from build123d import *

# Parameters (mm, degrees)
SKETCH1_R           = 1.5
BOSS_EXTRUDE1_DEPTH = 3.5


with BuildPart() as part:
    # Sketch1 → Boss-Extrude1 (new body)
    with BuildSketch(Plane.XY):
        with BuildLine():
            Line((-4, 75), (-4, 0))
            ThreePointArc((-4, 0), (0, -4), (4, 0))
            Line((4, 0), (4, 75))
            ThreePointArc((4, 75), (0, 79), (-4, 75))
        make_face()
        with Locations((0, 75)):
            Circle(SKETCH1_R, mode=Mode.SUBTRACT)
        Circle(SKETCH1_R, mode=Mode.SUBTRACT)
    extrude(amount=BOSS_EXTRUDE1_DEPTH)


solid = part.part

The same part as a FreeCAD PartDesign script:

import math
import FreeCAD as App
import Part
import Sketcher
from FreeCAD import Vector
Q = App.Units.Quantity

doc = App.newDocument("Part")
params = doc.addObject("Spreadsheet::Sheet", "Params")
for row, (alias, value) in enumerate([
    ("sketch1_diameter", "3 mm"),
    ("sketch1_radius", "4 mm"),
    ("sketch1_height", "75 mm"),
    ("pad1_length", "3.5 mm"),
], start=1):
    params.set(f"A{row}", alias)
    params.set(f"B{row}", "=" + value)
    params.setAlias(f"B{row}", alias)

body = doc.addObject("PartDesign::Body", "Body")

# Sketch on XY plane
sketch1 = body.newObject("Sketcher::SketchObject", "Sketch")
sketch1.AttachmentSupport = (doc.getObject("XY_Plane"), [""])
sketch1.MapMode = "FlatFace"
sketch1.addGeometry([
    Part.LineSegment(Vector(-4, 75, 0), Vector(-4, 0, 0)),  # 0
    Part.ArcOfCircle(Part.Circle(Vector(0, 0, 0), Vector(0, 0, 1), 4), math.radians(180), math.radians(360)),  # 1
    Part.LineSegment(Vector(4, 0, 0), Vector(4, 75, 0)),  # 2
    Part.ArcOfCircle(Part.Circle(Vector(0, 75, 0), Vector(0, 0, 1), 4), math.radians(0), math.radians(180)),  # 3
    Part.Circle(Vector(0, 0, 0), Vector(0, 0, 1), 1.5),  # 4
    Part.Circle(Vector(0, 75, 0), Vector(0, 0, 1), 1.5),  # 5
], False)
sketch1.addConstraint([
    Sketcher.Constraint("Tangent", 0, 2, 1, 1),
    Sketcher.Constraint("Tangent", 1, 2, 2, 1),
    Sketcher.Constraint("Tangent", 2, 2, 3, 1),
    Sketcher.Constraint("Tangent", 3, 2, 0, 1),
    Sketcher.Constraint("Vertical", 0),
    Sketcher.Constraint("Vertical", 2),
    Sketcher.Constraint("Coincident", 1, 3, -1, 1),
    Sketcher.Constraint("Coincident", 4, 3, -1, 1),
    Sketcher.Constraint("Coincident", 5, 3, 3, 3),
    Sketcher.Constraint("Equal", 4, 5),
    Sketcher.Constraint("Diameter", 4, Q("3 mm")),
    Sketcher.Constraint("Radius", 1, Q("4 mm")),
    Sketcher.Constraint("DistanceY", 0, 2, 0, 1, Q("75 mm")),
])
sketch1.setExpression("Constraints[10]", "Params.sketch1_diameter")
sketch1.setExpression("Constraints[11]", "Params.sketch1_radius")
sketch1.setExpression("Constraints[12]", "Params.sketch1_height")
pad1 = body.newObject("PartDesign::Pad", "Pad")
pad1.Profile = sketch1
pad1.setExpression("Length", "Params.pad1_length")

doc.recompute()
